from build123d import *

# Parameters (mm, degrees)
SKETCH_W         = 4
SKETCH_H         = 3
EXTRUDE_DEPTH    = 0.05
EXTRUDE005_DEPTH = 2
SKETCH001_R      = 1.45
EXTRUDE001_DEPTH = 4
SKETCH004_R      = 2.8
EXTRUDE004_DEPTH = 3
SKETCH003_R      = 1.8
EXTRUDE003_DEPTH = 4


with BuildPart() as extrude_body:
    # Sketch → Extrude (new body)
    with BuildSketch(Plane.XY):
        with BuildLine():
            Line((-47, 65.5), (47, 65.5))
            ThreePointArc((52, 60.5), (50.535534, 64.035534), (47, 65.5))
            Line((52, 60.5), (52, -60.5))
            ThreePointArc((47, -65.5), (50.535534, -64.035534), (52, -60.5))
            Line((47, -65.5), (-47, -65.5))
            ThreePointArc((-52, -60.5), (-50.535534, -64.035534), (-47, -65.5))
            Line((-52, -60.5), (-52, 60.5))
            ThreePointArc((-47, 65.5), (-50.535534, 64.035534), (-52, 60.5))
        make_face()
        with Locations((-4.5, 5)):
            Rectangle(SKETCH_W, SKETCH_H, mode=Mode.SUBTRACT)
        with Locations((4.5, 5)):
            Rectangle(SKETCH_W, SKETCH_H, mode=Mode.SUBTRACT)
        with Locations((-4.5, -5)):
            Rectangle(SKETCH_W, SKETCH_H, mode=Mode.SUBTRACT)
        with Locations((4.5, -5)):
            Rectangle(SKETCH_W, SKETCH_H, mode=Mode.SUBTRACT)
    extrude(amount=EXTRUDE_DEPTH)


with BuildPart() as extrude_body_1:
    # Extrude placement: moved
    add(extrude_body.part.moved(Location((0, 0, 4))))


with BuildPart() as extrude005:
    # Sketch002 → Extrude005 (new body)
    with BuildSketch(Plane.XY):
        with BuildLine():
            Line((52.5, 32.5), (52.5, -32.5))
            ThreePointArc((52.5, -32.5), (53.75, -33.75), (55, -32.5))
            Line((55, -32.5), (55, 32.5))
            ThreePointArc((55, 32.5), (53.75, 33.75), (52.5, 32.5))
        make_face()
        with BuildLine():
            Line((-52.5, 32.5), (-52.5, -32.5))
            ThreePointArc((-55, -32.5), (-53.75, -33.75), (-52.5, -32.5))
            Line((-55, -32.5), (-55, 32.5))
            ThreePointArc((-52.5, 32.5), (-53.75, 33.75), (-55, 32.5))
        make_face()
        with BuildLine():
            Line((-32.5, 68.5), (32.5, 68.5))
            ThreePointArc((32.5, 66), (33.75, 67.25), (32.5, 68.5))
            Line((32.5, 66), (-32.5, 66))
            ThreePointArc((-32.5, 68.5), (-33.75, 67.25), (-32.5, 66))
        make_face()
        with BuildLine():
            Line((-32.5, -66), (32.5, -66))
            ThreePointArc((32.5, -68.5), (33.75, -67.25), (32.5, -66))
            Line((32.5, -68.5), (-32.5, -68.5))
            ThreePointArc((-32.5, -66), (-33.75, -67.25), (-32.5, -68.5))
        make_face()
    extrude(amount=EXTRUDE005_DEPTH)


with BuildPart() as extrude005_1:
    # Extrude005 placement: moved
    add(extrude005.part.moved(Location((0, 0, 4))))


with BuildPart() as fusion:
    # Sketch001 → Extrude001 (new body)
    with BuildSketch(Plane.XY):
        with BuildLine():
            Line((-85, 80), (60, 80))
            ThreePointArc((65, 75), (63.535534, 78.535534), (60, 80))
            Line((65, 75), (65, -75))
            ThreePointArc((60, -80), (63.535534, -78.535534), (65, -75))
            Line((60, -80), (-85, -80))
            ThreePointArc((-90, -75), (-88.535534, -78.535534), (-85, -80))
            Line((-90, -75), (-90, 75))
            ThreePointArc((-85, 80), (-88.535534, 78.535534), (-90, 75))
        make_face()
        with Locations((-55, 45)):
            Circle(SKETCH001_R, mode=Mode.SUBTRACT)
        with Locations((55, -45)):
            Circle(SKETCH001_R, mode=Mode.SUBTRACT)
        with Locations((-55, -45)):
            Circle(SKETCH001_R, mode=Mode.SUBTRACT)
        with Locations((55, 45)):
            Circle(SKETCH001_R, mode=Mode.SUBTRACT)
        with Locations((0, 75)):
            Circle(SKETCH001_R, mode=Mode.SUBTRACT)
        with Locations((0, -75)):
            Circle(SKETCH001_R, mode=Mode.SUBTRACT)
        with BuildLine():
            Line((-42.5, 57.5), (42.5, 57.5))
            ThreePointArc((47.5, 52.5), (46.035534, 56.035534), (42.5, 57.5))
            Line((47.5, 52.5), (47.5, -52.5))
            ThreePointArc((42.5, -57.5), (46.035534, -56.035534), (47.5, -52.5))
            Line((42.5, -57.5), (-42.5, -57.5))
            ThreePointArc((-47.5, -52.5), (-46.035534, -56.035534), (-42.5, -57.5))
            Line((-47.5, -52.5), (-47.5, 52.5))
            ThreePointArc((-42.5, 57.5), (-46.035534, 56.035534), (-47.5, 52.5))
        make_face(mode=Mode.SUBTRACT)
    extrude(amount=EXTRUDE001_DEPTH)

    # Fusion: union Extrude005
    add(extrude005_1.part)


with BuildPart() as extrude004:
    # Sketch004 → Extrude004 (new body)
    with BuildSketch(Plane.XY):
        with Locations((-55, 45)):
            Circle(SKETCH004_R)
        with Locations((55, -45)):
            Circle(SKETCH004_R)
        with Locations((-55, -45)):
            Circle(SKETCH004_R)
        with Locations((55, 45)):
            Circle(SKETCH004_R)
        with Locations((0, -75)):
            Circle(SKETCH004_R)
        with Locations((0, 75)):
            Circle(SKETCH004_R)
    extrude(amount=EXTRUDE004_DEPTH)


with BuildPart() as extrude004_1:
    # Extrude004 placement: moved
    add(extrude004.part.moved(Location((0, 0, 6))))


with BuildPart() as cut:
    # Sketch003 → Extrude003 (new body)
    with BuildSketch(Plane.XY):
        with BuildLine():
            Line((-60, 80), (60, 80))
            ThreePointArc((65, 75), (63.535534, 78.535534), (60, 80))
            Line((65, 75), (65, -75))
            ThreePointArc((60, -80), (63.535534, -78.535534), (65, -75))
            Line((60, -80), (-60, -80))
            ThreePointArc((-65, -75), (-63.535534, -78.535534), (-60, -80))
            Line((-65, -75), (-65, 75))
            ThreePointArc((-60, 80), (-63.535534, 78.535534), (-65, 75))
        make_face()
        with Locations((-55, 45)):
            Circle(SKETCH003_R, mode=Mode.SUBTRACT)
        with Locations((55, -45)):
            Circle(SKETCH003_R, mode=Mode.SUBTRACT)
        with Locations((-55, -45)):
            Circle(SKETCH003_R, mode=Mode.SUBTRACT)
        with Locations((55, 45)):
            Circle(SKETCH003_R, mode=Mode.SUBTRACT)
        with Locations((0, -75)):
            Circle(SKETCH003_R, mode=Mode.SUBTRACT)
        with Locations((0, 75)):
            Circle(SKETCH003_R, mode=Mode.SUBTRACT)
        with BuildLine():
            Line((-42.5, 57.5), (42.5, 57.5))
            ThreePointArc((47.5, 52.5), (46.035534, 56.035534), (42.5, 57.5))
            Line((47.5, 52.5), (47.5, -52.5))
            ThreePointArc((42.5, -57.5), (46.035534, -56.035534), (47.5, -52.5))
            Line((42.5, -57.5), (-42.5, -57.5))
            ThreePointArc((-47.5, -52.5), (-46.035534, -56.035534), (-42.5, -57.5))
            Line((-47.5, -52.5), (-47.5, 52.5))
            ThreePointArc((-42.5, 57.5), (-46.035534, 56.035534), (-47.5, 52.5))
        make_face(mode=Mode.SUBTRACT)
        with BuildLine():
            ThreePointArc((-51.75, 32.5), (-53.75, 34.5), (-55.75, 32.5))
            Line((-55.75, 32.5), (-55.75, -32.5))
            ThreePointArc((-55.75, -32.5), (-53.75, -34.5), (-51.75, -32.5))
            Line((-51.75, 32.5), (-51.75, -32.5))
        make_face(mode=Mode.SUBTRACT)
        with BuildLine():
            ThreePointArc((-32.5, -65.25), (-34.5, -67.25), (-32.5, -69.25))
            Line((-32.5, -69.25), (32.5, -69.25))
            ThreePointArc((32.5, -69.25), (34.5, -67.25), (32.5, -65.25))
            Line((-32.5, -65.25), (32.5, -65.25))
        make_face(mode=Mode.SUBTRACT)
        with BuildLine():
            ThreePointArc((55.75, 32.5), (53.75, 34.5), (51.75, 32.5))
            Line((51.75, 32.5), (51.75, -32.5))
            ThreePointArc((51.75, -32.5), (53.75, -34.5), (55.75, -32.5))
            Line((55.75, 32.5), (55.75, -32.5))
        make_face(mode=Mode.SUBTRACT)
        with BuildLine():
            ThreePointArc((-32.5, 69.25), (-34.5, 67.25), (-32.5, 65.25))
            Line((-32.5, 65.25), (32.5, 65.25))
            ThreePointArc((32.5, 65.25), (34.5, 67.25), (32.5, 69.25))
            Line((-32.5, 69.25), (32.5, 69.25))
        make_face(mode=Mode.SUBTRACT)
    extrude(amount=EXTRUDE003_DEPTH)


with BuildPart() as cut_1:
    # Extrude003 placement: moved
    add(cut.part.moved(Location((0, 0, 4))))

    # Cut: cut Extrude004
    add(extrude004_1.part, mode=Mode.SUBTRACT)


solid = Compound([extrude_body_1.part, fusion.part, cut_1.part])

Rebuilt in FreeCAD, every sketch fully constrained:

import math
import FreeCAD as App
import Part
import Sketcher
from FreeCAD import Vector


def add_polygon(sketch, points):
    """Adds a closed chain of lines whose ends are joined by coincident constraints."""
    first, n = sketch.GeometryCount, len(points)
    for a, b in zip(points, points[1:] + points[:1]):
        sketch.addGeometry(Part.LineSegment(App.Vector(*a, 0), App.Vector(*b, 0)), False)
    for i in range(n):
        sketch.addConstraint(Sketcher.Constraint("Coincident", first + i, 2, first + (i + 1) % n, 1))

doc = App.newDocument("Part")
params = doc.addObject("Spreadsheet::Sheet", "Params")
for row, (alias, value) in enumerate([
    ("sketch1_radius", "5 mm"),
    ("sketch1_width", "94 mm"),
    ("sketch1_width2", "4 mm"),
    ("sketch1_height", "121 mm"),
    ("sketch1_height2", "3 mm"),
    ("pad1_length", "0.05 mm"),
    ("sketch2_width", "65 mm"),
    ("sketch2_radius", "1.25 mm"),
    ("pad2_length", "2 mm"),
    ("sketch3_radius", "5 mm"),
    ("sketch3_diameter", "2.9 mm"),
    ("sketch3_width", "145 mm"),
    ("sketch3_width2", "85 mm"),
    ("sketch3_height", "150 mm"),
    ("pad3_length", "4 mm"),
    ("sketch4_diameter", "5.6 mm"),
    ("pad4_length", "3 mm"),
    ("sketch5_radius", "5 mm"),
    ("sketch5_radius2", "2 mm"),
    ("sketch5_diameter", "3.6 mm"),
    ("sketch5_width", "120 mm"),
    ("sketch5_width2", "65 mm"),
    ("pad5_length", "4 mm"),
], start=1):
    params.set(f"A{row}", alias)
    params.set(f"B{row}", "=" + value)
    params.setAlias(f"B{row}", alias)

body = doc.addObject("PartDesign::Body", "Body")

# Sketch on XY plane
sketch1 = body.newObject("Sketcher::SketchObject", "Sketch")
sketch1.AttachmentSupport = (doc.getObject("XY_Plane"), [""])
sketch1.MapMode = "FlatFace"
sketch1.addGeometry(Part.LineSegment(Vector(47, 65.5, 0), Vector(-47, 65.5, 0)), False)  # 0
sketch1.addGeometry(Part.ArcOfCircle(Part.Circle(Vector(-47, 60.5, 0), Vector(0, 0, 1), 5), math.radians(90), math.radians(180)), False)  # 1
sketch1.addGeometry(Part.LineSegment(Vector(-52, 60.5, 0), Vector(-52, -60.5, 0)), False)  # 2
sketch1.addGeometry(Part.ArcOfCircle(Part.Circle(Vector(-47, -60.5, 0), Vector(0, 0, 1), 5), math.radians(180), math.radians(270)), False)  # 3
sketch1.addGeometry(Part.LineSegment(Vector(-47, -65.5, 0), Vector(47, -65.5, 0)), False)  # 4
sketch1.addGeometry(Part.ArcOfCircle(Part.Circle(Vector(47, -60.5, 0), Vector(0, 0, 1), 5), math.radians(-90), math.radians(0)), False)  # 5
sketch1.addGeometry(Part.LineSegment(Vector(52, -60.5, 0), Vector(52, 60.5, 0)), False)  # 6
sketch1.addGeometry(Part.ArcOfCircle(Part.Circle(Vector(47, 60.5, 0), Vector(0, 0, 1), 5), math.radians(0), math.radians(90)), False)  # 7
add_polygon(sketch1, [(2.5, -6.5), (2.5, -3.5), (6.5, -3.5), (6.5, -6.5)])  # lines 8-11
add_polygon(sketch1, [(-6.5, -6.5), (-6.5, -3.5), (-2.5, -3.5), (-2.5, -6.5)])  # lines 12-15
add_polygon(sketch1, [(2.5, 3.5), (2.5, 6.5), (6.5, 6.5), (6.5, 3.5)])  # lines 16-19
add_polygon(sketch1, [(-6.5, 3.5), (-6.5, 6.5), (-2.5, 6.5), (-2.5, 3.5)])  # lines 20-23
sketch1.addConstraint(Sketcher.Constraint("Tangent", 0, 2, 1, 1))
sketch1.addConstraint(Sketcher.Constraint("Tangent", 1, 2, 2, 1))
sketch1.addConstraint(Sketcher.Constraint("Tangent", 2, 2, 3, 1))
sketch1.addConstraint(Sketcher.Constraint("Tangent", 3, 2, 4, 1))
sketch1.addConstraint(Sketcher.Constraint("Tangent", 4, 2, 5, 1))
sketch1.addConstraint(Sketcher.Constraint("Tangent", 5, 2, 6, 1))
sketch1.addConstraint(Sketcher.Constraint("Tangent", 6, 2, 7, 1))
sketch1.addConstraint(Sketcher.Constraint("Tangent", 7, 2, 0, 1))
sketch1.addConstraint(Sketcher.Constraint("Horizontal", 0))
sketch1.addConstraint(Sketcher.Constraint("Vertical", 2))
sketch1.addConstraint(Sketcher.Constraint("Horizontal", 4))
sketch1.addConstraint(Sketcher.Constraint("Vertical", 6))
sketch1.addConstraint(Sketcher.Constraint("Vertical", 8))
sketch1.addConstraint(Sketcher.Constraint("Horizontal", 9))
sketch1.addConstraint(Sketcher.Constraint("Vertical", 10))
sketch1.addConstraint(Sketcher.Constraint("Horizontal", 11))
sketch1.addConstraint(Sketcher.Constraint("Vertical", 12))
sketch1.addConstraint(Sketcher.Constraint("Horizontal", 13))
sketch1.addConstraint(Sketcher.Constraint("Vertical", 14))
sketch1.addConstraint(Sketcher.Constraint("Horizontal", 15))
sketch1.addConstraint(Sketcher.Constraint("Vertical", 16))
sketch1.addConstraint(Sketcher.Constraint("Horizontal", 17))
sketch1.addConstraint(Sketcher.Constraint("Vertical", 18))
sketch1.addConstraint(Sketcher.Constraint("Horizontal", 19))
sketch1.addConstraint(Sketcher.Constraint("Vertical", 20))
sketch1.addConstraint(Sketcher.Constraint("Horizontal", 21))
sketch1.addConstraint(Sketcher.Constraint("Vertical", 22))
sketch1.addConstraint(Sketcher.Constraint("Horizontal", 23))
sketch1.addConstraint(Sketcher.Constraint("Equal", 1, 3))
sketch1.addConstraint(Sketcher.Constraint("Equal", 3, 5))
sketch1.addConstraint(Sketcher.Constraint("Equal", 5, 7))
sketch1.addConstraint(Sketcher.Constraint("Symmetric", 1, 3, 5, 3, -1, 1))
sketch1.addConstraint(Sketcher.Constraint("Symmetric", 14, 2, 16, 2, -1, 1))
sketch1.addConstraint(Sketcher.Constraint("Symmetric", 12, 2, 18, 2, -1, 1))
sketch1.addConstraint(Sketcher.Constraint("Symmetric", 10, 2, 20, 2, -1, 1))
sketch1.addConstraint(Sketcher.Constraint("Symmetric", 8, 2, 22, 2, -1, 1))
sketch1.addConstraint(Sketcher.Constraint("Symmetric", 9, 2, 12, 2, -2))
sketch1.addConstraint(Sketcher.Constraint("Symmetric", 11, 2, 14, 2, -2))
sketch1.addConstraint(Sketcher.Constraint("Radius", 1, 5.0))
sketch1.addConstraint(Sketcher.Constraint("DistanceX", 0, 2, 0, 1, 94.0))
sketch1.addConstraint(Sketcher.Constraint("DistanceX", 9, 1, 9, 2, 4.0))
sketch1.addConstraint(Sketcher.Constraint("DistanceY", 2, 2, 2, 1, 121.0))
sketch1.addConstraint(Sketcher.Constraint("DistanceY", 8, 1, 8, 2, 3.0))
sketch1.addConstraint(Sketcher.Constraint("DistanceY", 5, 3, 8, 2, 57.0))
sketch1.addConstraint(Sketcher.Constraint("DistanceX", 12, 2, 8, 2, 9.0))
sketch1.setExpression("Constraints[54]", "Params.sketch1_radius")
sketch1.setExpression("Constraints[55]", "Params.sketch1_width")
sketch1.setExpression("Constraints[56]", "Params.sketch1_width2")
sketch1.setExpression("Constraints[57]", "Params.sketch1_height")
sketch1.setExpression("Constraints[58]", "Params.sketch1_height2")
pad1 = body.newObject("PartDesign::Pad", "Pad")
pad1.Profile = sketch1
pad1.setExpression("Length", "Params.pad1_length")
body2 = doc.addObject("PartDesign::Body", "Body001")
doc.recompute()

body.Placement = App.Placement(Vector(0, 0, 4), App.Rotation(Vector(0, 0, 1), 0))
boolean = body2.newObject("PartDesign::Boolean", "Boolean")
boolean.Type = "Fuse"
boolean.addObjects([body])
body3 = doc.addObject("PartDesign::Body", "Body002")
body3.AllowCompound = True

# Sketch on XY plane
sketch2 = body3.newObject("Sketcher::SketchObject", "Sketch001")
sketch2.AttachmentSupport = (doc.getObject("XY_Plane002"), [""])
sketch2.MapMode = "FlatFace"
sketch2.addGeometry(Part.LineSegment(Vector(52.5, 32.5, 0), Vector(52.5, -32.5, 0)), False)
sketch2.addGeometry(Part.ArcOfCircle(Part.Circle(Vector(53.8, -32.5, 0), Vector(0, 0, 1), 1.2), math.radians(180), math.radians(360)), False)
sketch2.addGeometry(Part.LineSegment(Vector(55, -32.5, 0), Vector(55, 32.5, 0)), False)
sketch2.addGeometry(Part.ArcOfCircle(Part.Circle(Vector(53.8, 32.5, 0), Vector(0, 0, 1), 1.2), math.radians(0), math.radians(180)), False)
sketch2.addGeometry(Part.LineSegment(Vector(-52.5, -32.5, 0), Vector(-52.5, 32.5, 0)), False)
sketch2.addGeometry(Part.ArcOfCircle(Part.Circle(Vector(-53.8, 32.5, 0), Vector(0, 0, 1), 1.2), math.radians(0), math.radians(180)), False)
sketch2.addGeometry(Part.LineSegment(Vector(-55, 32.5, 0), Vector(-55, -32.5, 0)), False)
sketch2.addGeometry(Part.ArcOfCircle(Part.Circle(Vector(-53.8, -32.5, 0), Vector(0, 0, 1), 1.2), math.radians(180), math.radians(360)), False)
sketch2.addGeometry(Part.LineSegment(Vector(32.5, 68.5, 0), Vector(-32.5, 68.5, 0)), False)
sketch2.addGeometry(Part.ArcOfCircle(Part.Circle(Vector(-32.5, 67.2, 0), Vector(0, 0, 1), 1.2), math.radians(90), math.radians(270)), False)
sketch2.addGeometry(Part.LineSegment(Vector(-32.5, 66, 0), Vector(32.5, 66, 0)), False)
sketch2.addGeometry(Part.ArcOfCircle(Part.Circle(Vector(32.5, 67.2, 0), Vector(0, 0, 1), 1.2), math.radians(-90), math.radians(90)), False)
sketch2.addGeometry(Part.LineSegment(Vector(32.5, -66, 0), Vector(-32.5, -66, 0)), False)
sketch2.addGeometry(Part.ArcOfCircle(Part.Circle(Vector(-32.5, -67.2, 0), Vector(0, 0, 1), 1.2), math.radians(90), math.radians(270)), False)
sketch2.addGeometry(Part.LineSegment(Vector(-32.5, -68.5, 0), Vector(32.5, -68.5, 0)), False)
sketch2.addGeometry(Part.ArcOfCircle(Part.Circle(Vector(32.5, -67.2, 0), Vector(0, 0, 1), 1.2), math.radians(-90), math.radians(90)), False)
sketch2.addConstraint(Sketcher.Constraint("Tangent", 0, 2, 1, 1))
sketch2.addConstraint(Sketcher.Constraint("Tangent", 1, 2, 2, 1))
sketch2.addConstraint(Sketcher.Constraint("Tangent", 2, 2, 3, 1))
sketch2.addConstraint(Sketcher.Constraint("Tangent", 3, 2, 0, 1))
sketch2.addConstraint(Sketcher.Constraint("Tangent", 4, 2, 5, 1))
sketch2.addConstraint(Sketcher.Constraint("Tangent", 5, 2, 6, 1))
sketch2.addConstraint(Sketcher.Constraint("Tangent", 6, 2, 7, 1))
sketch2.addConstraint(Sketcher.Constraint("Tangent", 7, 2, 4, 1))
sketch2.addConstraint(Sketcher.Constraint("Tangent", 8, 2, 9, 1))
sketch2.addConstraint(Sketcher.Constraint("Tangent", 9, 2, 10, 1))
sketch2.addConstraint(Sketcher.Constraint("Tangent", 10, 2, 11, 1))
sketch2.addConstraint(Sketcher.Constraint("Tangent", 11, 2, 8, 1))
sketch2.addConstraint(Sketcher.Constraint("Tangent", 12, 2, 13, 1))
sketch2.addConstraint(Sketcher.Constraint("Tangent", 13, 2, 14, 1))
sketch2.addConstraint(Sketcher.Constraint("Tangent", 14, 2, 15, 1))
sketch2.addConstraint(Sketcher.Constraint("Tangent", 15, 2, 12, 1))
sketch2.addConstraint(Sketcher.Constraint("Vertical", 0))
sketch2.addConstraint(Sketcher.Constraint("Vertical", 2))
sketch2.addConstraint(Sketcher.Constraint("Vertical", 4))
sketch2.addConstraint(Sketcher.Constraint("Vertical", 6))
sketch2.addConstraint(Sketcher.Constraint("Horizontal", 8))
sketch2.addConstraint(Sketcher.Constraint("Horizontal", 10))
sketch2.addConstraint(Sketcher.Constraint("Horizontal", 12))
sketch2.addConstraint(Sketcher.Constraint("Horizontal", 14))
sketch2.addConstraint(Sketcher.Constraint("Equal", 3, 5))
sketch2.addConstraint(Sketcher.Constraint("Equal", 7, 9))
sketch2.addConstraint(Sketcher.Constraint("Equal", 11, 13))
sketch2.addConstraint(Sketcher.Constraint("Symmetric", 1, 3, 5, 3, -1, 1))
sketch2.addConstraint(Sketcher.Constraint("Symmetric", 11, 3, 13, 3, -1, 1))
sketch2.addConstraint(Sketcher.Constraint("Horizontal", 3, 3, 5, 3))
sketch2.addConstraint(Sketcher.Constraint("Horizontal", 1, 3, 7, 3))
sketch2.addConstraint(Sketcher.Constraint("Vertical", 9, 3, 13, 3))
sketch2.addConstraint(Sketcher.Constraint("Vertical", 11, 3, 15, 3))
sketch2.addConstraint(Sketcher.Constraint("Equal", 14, 0))
sketch2.addConstraint(Sketcher.Constraint("DistanceX", 8, 2, 8, 1, 65.0))
sketch2.addConstraint(Sketcher.Constraint("Radius", 1, 1.25))
sketch2.addConstraint(Sketcher.Constraint("DistanceX", -1, 1, 1, 2, 55.0))
sketch2.addConstraint(Sketcher.Constraint("DistanceY", -1, 1, 9, 2, 66.0))
sketch2.setExpression("Constraints[34]", "Params.sketch2_width")
sketch2.setExpression("Constraints[35]", "Params.sketch2_radius")
pad2 = body3.newObject("PartDesign::Pad", "Pad001")
pad2.Profile = sketch2
pad2.setExpression("Length", "Params.pad2_length")
body4 = doc.addObject("PartDesign::Body", "Body003")
body4.AllowCompound = True
doc.recompute()

body3.Placement = App.Placement(Vector(0, 0, 4), App.Rotation(Vector(0, 0, 1), 0))
boolean2 = body4.newObject("PartDesign::Boolean", "Boolean001")
boolean2.Type = "Fuse"
boolean2.addObjects([body3])
body5 = doc.addObject("PartDesign::Body", "Body004")

# Sketch on XY plane
sketch3 = body5.newObject("Sketcher::SketchObject", "Sketch002")
sketch3.AttachmentSupport = (doc.getObject("XY_Plane004"), [""])
sketch3.MapMode = "FlatFace"
sketch3.addGeometry(Part.LineSegment(Vector(60, 80, 0), Vector(-85, 80, 0)), False)
sketch3.addGeometry(Part.ArcOfCircle(Part.Circle(Vector(-85, 75, 0), Vector(0, 0, 1), 5), math.radians(90), math.radians(180)), False)
sketch3.addGeometry(Part.LineSegment(Vector(-90, 75, 0), Vector(-90, -75, 0)), False)
sketch3.addGeometry(Part.ArcOfCircle(Part.Circle(Vector(-85, -75, 0), Vector(0, 0, 1), 5), math.radians(180), math.radians(270)), False)
sketch3.addGeometry(Part.LineSegment(Vector(-85, -80, 0), Vector(60, -80, 0)), False)
sketch3.addGeometry(Part.ArcOfCircle(Part.Circle(Vector(60, -75, 0), Vector(0, 0, 1), 5), math.radians(-90), math.radians(0)), False)
sketch3.addGeometry(Part.LineSegment(Vector(65, -75, 0), Vector(65, 75, 0)), False)
sketch3.addGeometry(Part.ArcOfCircle(Part.Circle(Vector(60, 75, 0), Vector(0, 0, 1), 5), math.radians(0), math.radians(90)), False)
sketch3.addGeometry(Part.Circle(Vector(55, -45, 0), Vector(0, 0, 1), 1.4), False)
sketch3.addGeometry(Part.Circle(Vector(0, -75, 0), Vector(0, 0, 1), 1.4), False)
sketch3.addGeometry(Part.Circle(Vector(-55, -45, 0), Vector(0, 0, 1), 1.4), False)
sketch3.addGeometry(Part.LineSegment(Vector(-42.5, 57.5, 0), Vector(42.5, 57.5, 0)), False)
sketch3.addGeometry(Part.ArcOfCircle(Part.Circle(Vector(42.5, 52.5, 0), Vector(0, 0, 1), 5), math.radians(0), math.radians(90)), False)
sketch3.addGeometry(Part.LineSegment(Vector(47.5, 52.5, 0), Vector(47.5, -52.5, 0)), False)
sketch3.addGeometry(Part.ArcOfCircle(Part.Circle(Vector(42.5, -52.5, 0), Vector(0, 0, 1), 5), math.radians(-90), math.radians(0)), False)
sketch3.addGeometry(Part.LineSegment(Vector(42.5, -57.5, 0), Vector(-42.5, -57.5, 0)), False)
sketch3.addGeometry(Part.ArcOfCircle(Part.Circle(Vector(-42.5, -52.5, 0), Vector(0, 0, 1), 5), math.radians(180), math.radians(270)), False)
sketch3.addGeometry(Part.LineSegment(Vector(-47.5, -52.5, 0), Vector(-47.5, 52.5, 0)), False)
sketch3.addGeometry(Part.ArcOfCircle(Part.Circle(Vector(-42.5, 52.5, 0), Vector(0, 0, 1), 5), math.radians(90), math.radians(180)), False)
sketch3.addGeometry(Part.Circle(Vector(55, 45, 0), Vector(0, 0, 1), 1.4), False)
sketch3.addGeometry(Part.Circle(Vector(0, 75, 0), Vector(0, 0, 1), 1.4), False)
sketch3.addGeometry(Part.Circle(Vector(-55, 45, 0), Vector(0, 0, 1), 1.4), False)
sketch3.addConstraint(Sketcher.Constraint("Tangent", 0, 2, 1, 1))
sketch3.addConstraint(Sketcher.Constraint("Tangent", 1, 2, 2, 1))
sketch3.addConstraint(Sketcher.Constraint("Tangent", 2, 2, 3, 1))
sketch3.addConstraint(Sketcher.Constraint("Tangent", 3, 2, 4, 1))
sketch3.addConstraint(Sketcher.Constraint("Tangent", 4, 2, 5, 1))
sketch3.addConstraint(Sketcher.Constraint("Tangent", 5, 2, 6, 1))
sketch3.addConstraint(Sketcher.Constraint("Tangent", 6, 2, 7, 1))
sketch3.addConstraint(Sketcher.Constraint("Tangent", 7, 2, 0, 1))
sketch3.addConstraint(Sketcher.Constraint("Tangent", 11, 2, 12, 2))
sketch3.addConstraint(Sketcher.Constraint("Tangent", 12, 1, 13, 1))
sketch3.addConstraint(Sketcher.Constraint("Tangent", 13, 2, 14, 2))
sketch3.addConstraint(Sketcher.Constraint("Tangent", 14, 1, 15, 1))
sketch3.addConstraint(Sketcher.Constraint("Tangent", 15, 2, 16, 2))
sketch3.addConstraint(Sketcher.Constraint("Tangent", 16, 1, 17, 1))
sketch3.addConstraint(Sketcher.Constraint("Tangent", 17, 2, 18, 2))
sketch3.addConstraint(Sketcher.Constraint("Tangent", 18, 1, 11, 1))
sketch3.addConstraint(Sketcher.Constraint("Horizontal", 0))
sketch3.addConstraint(Sketcher.Constraint("Vertical", 2))
sketch3.addConstraint(Sketcher.Constraint("Horizontal", 4))
sketch3.addConstraint(Sketcher.Constraint("Vertical", 6))
sketch3.addConstraint(Sketcher.Constraint("Horizontal", 11))
sketch3.addConstraint(Sketcher.Constraint("Vertical", 13))
sketch3.addConstraint(Sketcher.Constraint("Horizontal", 15))
sketch3.addConstraint(Sketcher.Constraint("Vertical", 17))
sketch3.addConstraint(Sketcher.Constraint("Equal", 1, 3))
sketch3.addConstraint(Sketcher.Constraint("Equal", 3, 5))
sketch3.addConstraint(Sketcher.Constraint("Equal", 5, 7))
sketch3.addConstraint(Sketcher.Constraint("Equal", 8, 9))
sketch3.addConstraint(Sketcher.Constraint("Equal", 9, 10))
sketch3.addConstraint(Sketcher.Constraint("Equal", 7, 12))
sketch3.addConstraint(Sketcher.Constraint("Equal", 12, 14))
sketch3.addConstraint(Sketcher.Constraint("Equal", 14, 16))
sketch3.addConstraint(Sketcher.Constraint("Equal", 16, 18))
sketch3.addConstraint(Sketcher.Constraint("Equal", 10, 19))
sketch3.addConstraint(Sketcher.Constraint("Equal", 19, 20))
sketch3.addConstraint(Sketcher.Constraint("Equal", 20, 21))
sketch3.addConstraint(Sketcher.Constraint("Symmetric", 12, 3, 16, 3, -1, 1))
sketch3.addConstraint(Sketcher.Constraint("Symmetric", 10, 3, 19, 3, -1, 1))
sketch3.addConstraint(Sketcher.Constraint("Symmetric", 9, 3, 20, 3, -1, 1))
sketch3.addConstraint(Sketcher.Constraint("Symmetric", 8, 3, 21, 3, -1, 1))
sketch3.addConstraint(Sketcher.Constraint("Symmetric", 8, 3, 10, 3, -2))
sketch3.addConstraint(Sketcher.Constraint("PointOnObject", 9, 3, -2))
sketch3.addConstraint(Sketcher.Constraint("Horizontal", 5, 3, 9, 3))
sketch3.addConstraint(Sketcher.Constraint("Horizontal", 7, 3, 20, 3))
sketch3.addConstraint(Sketcher.Constraint("Radius", 1, 5.0))
sketch3.addConstraint(Sketcher.Constraint("Diameter", 8, 2.9))
sketch3.addConstraint(Sketcher.Constraint("DistanceX", 0, 2, 0, 1, 145.0))
sketch3.addConstraint(Sketcher.Constraint("DistanceX", 11, 1, 11, 2, 85.0))
sketch3.addConstraint(Sketcher.Constraint("DistanceY", 2, 2, 2, 1, 150.0))
sketch3.addConstraint(Sketcher.Constraint("DistanceY", 13, 2, 13, 1, 105.0))
sketch3.addConstraint(Sketcher.Constraint("DistanceX", 1, 3, -1, 1, 85.0))
sketch3.addConstraint(Sketcher.Constraint("DistanceX", -1, 1, 8, 3, 55.0))
sketch3.addConstraint(Sketcher.Constraint("DistanceY", 8, 3, -1, 1, 45.0))
sketch3.setExpression("Constraints[44]", "Params.sketch3_radius")
sketch3.setExpression("Constraints[45]", "Params.sketch3_diameter")
sketch3.setExpression("Constraints[46]", "Params.sketch3_width")
sketch3.setExpression("Constraints[47]", "Params.sketch3_width2")
sketch3.setExpression("Constraints[48]", "Params.sketch3_height")
pad3 = body5.newObject("PartDesign::Pad", "Pad002")
pad3.Profile = sketch3
pad3.setExpression("Length", "Params.pad3_length")
doc.recompute()

boolean3 = body5.newObject("PartDesign::Boolean", "Boolean002")
boolean3.Type = "Fuse"
boolean3.addObjects([body4])
body6 = doc.addObject("PartDesign::Body", "Body005")
body6.AllowCompound = True

# Sketch on XY plane
sketch4 = body6.newObject("Sketcher::SketchObject", "Sketch003")
sketch4.AttachmentSupport = (doc.getObject("XY_Plane005"), [""])
sketch4.MapMode = "FlatFace"
sketch4.addGeometry(Part.Circle(Vector(-55, 45, 0), Vector(0, 0, 1), 2.8), False)
sketch4.addGeometry(Part.Circle(Vector(55, -45, 0), Vector(0, 0, 1), 2.8), False)
sketch4.addGeometry(Part.Circle(Vector(-55, -45, 0), Vector(0, 0, 1), 2.8), False)
sketch4.addGeometry(Part.Circle(Vector(55, 45, 0), Vector(0, 0, 1), 2.8), False)
sketch4.addGeometry(Part.Circle(Vector(0, -75, 0), Vector(0, 0, 1), 2.8), False)
sketch4.addGeometry(Part.Circle(Vector(0, 75, 0), Vector(0, 0, 1), 2.8), False)
sketch4.addConstraint(Sketcher.Constraint("Equal", 0, 1))
sketch4.addConstraint(Sketcher.Constraint("Equal", 1, 2))
sketch4.addConstraint(Sketcher.Constraint("Equal", 2, 3))
sketch4.addConstraint(Sketcher.Constraint("Equal", 3, 4))
sketch4.addConstraint(Sketcher.Constraint("Equal", 4, 5))
sketch4.addConstraint(Sketcher.Constraint("Symmetric", 0, 3, 1, 3, -1, 1))
sketch4.addConstraint(Sketcher.Constraint("Symmetric", 2, 3, 3, 3, -1, 1))
sketch4.addConstraint(Sketcher.Constraint("Symmetric", 4, 3, 5, 3, -1, 1))
sketch4.addConstraint(Sketcher.Constraint("Symmetric", 1, 3, 2, 3, -2))
sketch4.addConstraint(Sketcher.Constraint("PointOnObject", 4, 3, -2))
sketch4.addConstraint(Sketcher.Constraint("Diameter", 0, 5.6))
sketch4.addConstraint(Sketcher.Constraint("DistanceX", 0, 3, -1, 1, 55.0))
sketch4.addConstraint(Sketcher.Constraint("DistanceY", -1, 1, 0, 3, 45.0))
sketch4.addConstraint(Sketcher.Constraint("DistanceY", 4, 3, -1, 1, 75.0))
sketch4.setExpression("Constraints[10]", "Params.sketch4_diameter")
pad4 = body6.newObject("PartDesign::Pad", "Pad003")
pad4.Profile = sketch4
pad4.setExpression("Length", "Params.pad4_length")
body7 = doc.addObject("PartDesign::Body", "Body006")
body7.AllowCompound = True
doc.recompute()

body6.Placement = App.Placement(Vector(0, 0, 6), App.Rotation(Vector(0, 0, 1), 0))
boolean4 = body7.newObject("PartDesign::Boolean", "Boolean003")
boolean4.Type = "Fuse"
boolean4.addObjects([body6])
body8 = doc.addObject("PartDesign::Body", "Body007")

# Sketch on XY plane
sketch5 = body8.newObject("Sketcher::SketchObject", "Sketch004")
sketch5.AttachmentSupport = (doc.getObject("XY_Plane007"), [""])
sketch5.MapMode = "FlatFace"
sketch5.addGeometry(Part.LineSegment(Vector(60, 80, 0), Vector(-60, 80, 0)), False)
sketch5.addGeometry(Part.ArcOfCircle(Part.Circle(Vector(-60, 75, 0), Vector(0, 0, 1), 5), math.radians(90), math.radians(180)), False)
sketch5.addGeometry(Part.LineSegment(Vector(-65, 75, 0), Vector(-65, -75, 0)), False)
sketch5.addGeometry(Part.ArcOfCircle(Part.Circle(Vector(-60, -75, 0), Vector(0, 0, 1), 5), math.radians(180), math.radians(270)), False)
sketch5.addGeometry(Part.LineSegment(Vector(-60, -80, 0), Vector(60, -80, 0)), False)
sketch5.addGeometry(Part.ArcOfCircle(Part.Circle(Vector(60, -75, 0), Vector(0, 0, 1), 5), math.radians(-90), math.radians(0)), False)
sketch5.addGeometry(Part.LineSegment(Vector(65, -75, 0), Vector(65, 75, 0)), False)
sketch5.addGeometry(Part.ArcOfCircle(Part.Circle(Vector(60, 75, 0), Vector(0, 0, 1), 5), math.radians(0), math.radians(90)), False)
sketch5.addGeometry(Part.Circle(Vector(55, -45, 0), Vector(0, 0, 1), 1.8), False)
sketch5.addGeometry(Part.Circle(Vector(0, -75, 0), Vector(0, 0, 1), 1.8), False)
sketch5.addGeometry(Part.LineSegment(Vector(-32.5, -65.2, 0), Vector(32.5, -65.2, 0)), False)
sketch5.addGeometry(Part.ArcOfCircle(Part.Circle(Vector(32.5, -67.2, 0), Vector(0, 0, 1), 2), math.radians(-90), math.radians(90)), False)
sketch5.addGeometry(Part.LineSegment(Vector(32.5, -69.2, 0), Vector(-32.5, -69.2, 0)), False)
sketch5.addGeometry(Part.ArcOfCircle(Part.Circle(Vector(-32.5, -67.2, 0), Vector(0, 0, 1), 2), math.radians(90), math.radians(270)), False)
sketch5.addGeometry(Part.Circle(Vector(-55, -45, 0), Vector(0, 0, 1), 1.8), False)
sketch5.addGeometry(Part.LineSegment(Vector(55.8, 32.5, 0), Vector(55.8, -32.5, 0)), False)
sketch5.addGeometry(Part.ArcOfCircle(Part.Circle(Vector(53.8, -32.5, 0), Vector(0, 0, 1), 2), math.radians(180), math.radians(360)), False)
sketch5.addGeometry(Part.LineSegment(Vector(51.8, -32.5, 0), Vector(51.8, 32.5, 0)), False)
sketch5.addGeometry(Part.ArcOfCircle(Part.Circle(Vector(53.8, 32.5, 0), Vector(0, 0, 1), 2), math.radians(0), math.radians(180)), False)
sketch5.addGeometry(Part.Circle(Vector(55, 45, 0), Vector(0, 0, 1), 1.8), False)
sketch5.addGeometry(Part.LineSegment(Vector(-42.5, 57.5, 0), Vector(42.5, 57.5, 0)), False)
sketch5.addGeometry(Part.ArcOfCircle(Part.Circle(Vector(42.5, 52.5, 0), Vector(0, 0, 1), 5), math.radians(0), math.radians(90)), False)
sketch5.addGeometry(Part.LineSegment(Vector(47.5, 52.5, 0), Vector(47.5, -52.5, 0)), False)
sketch5.addGeometry(Part.ArcOfCircle(Part.Circle(Vector(42.5, -52.5, 0), Vector(0, 0, 1), 5), math.radians(-90), math.radians(0)), False)
sketch5.addGeometry(Part.LineSegment(Vector(42.5, -57.5, 0), Vector(-42.5, -57.5, 0)), False)
sketch5.addGeometry(Part.ArcOfCircle(Part.Circle(Vector(-42.5, -52.5, 0), Vector(0, 0, 1), 5), math.radians(180), math.radians(270)), False)
sketch5.addGeometry(Part.LineSegment(Vector(-47.5, -52.5, 0), Vector(-47.5, 52.5, 0)), False)
sketch5.addGeometry(Part.ArcOfCircle(Part.Circle(Vector(-42.5, 52.5, 0), Vector(0, 0, 1), 5), math.radians(90), math.radians(180)), False)
sketch5.addGeometry(Part.LineSegment(Vector(-51.8, 32.5, 0), Vector(-51.8, -32.5, 0)), False)
sketch5.addGeometry(Part.ArcOfCircle(Part.Circle(Vector(-53.8, -32.5, 0), Vector(0, 0, 1), 2), math.radians(180), math.radians(360)), False)
sketch5.addGeometry(Part.LineSegment(Vector(-55.8, -32.5, 0), Vector(-55.8, 32.5, 0)), False)
sketch5.addGeometry(Part.ArcOfCircle(Part.Circle(Vector(-53.8, 32.5, 0), Vector(0, 0, 1), 2), math.radians(0), math.radians(180)), False)
sketch5.addGeometry(Part.LineSegment(Vector(-32.5, 69.2, 0), Vector(32.5, 69.2, 0)), False)
sketch5.addGeometry(Part.ArcOfCircle(Part.Circle(Vector(32.5, 67.2, 0), Vector(0, 0, 1), 2), math.radians(-90), math.radians(90)), False)
sketch5.addGeometry(Part.LineSegment(Vector(32.5, 65.2, 0), Vector(-32.5, 65.2, 0)), False)
sketch5.addGeometry(Part.ArcOfCircle(Part.Circle(Vector(-32.5, 67.2, 0), Vector(0, 0, 1), 2), math.radians(90), math.radians(270)), False)
sketch5.addGeometry(Part.Circle(Vector(0, 75, 0), Vector(0, 0, 1), 1.8), False)
sketch5.addGeometry(Part.Circle(Vector(-55, 45, 0), Vector(0, 0, 1), 1.8), False)
sketch5.addConstraint(Sketcher.Constraint("Tangent", 0, 2, 1, 1))
sketch5.addConstraint(Sketcher.Constraint("Tangent", 1, 2, 2, 1))
sketch5.addConstraint(Sketcher.Constraint("Tangent", 2, 2, 3, 1))
sketch5.addConstraint(Sketcher.Constraint("Tangent", 3, 2, 4, 1))
sketch5.addConstraint(Sketcher.Constraint("Tangent", 4, 2, 5, 1))
sketch5.addConstraint(Sketcher.Constraint("Tangent", 5, 2, 6, 1))
sketch5.addConstraint(Sketcher.Constraint("Tangent", 6, 2, 7, 1))
sketch5.addConstraint(Sketcher.Constraint("Tangent", 7, 2, 0, 1))
sketch5.addConstraint(Sketcher.Constraint("Tangent", 10, 2, 11, 2))
sketch5.addConstraint(Sketcher.Constraint("Tangent", 11, 1, 12, 1))
sketch5.addConstraint(Sketcher.Constraint("Tangent", 12, 2, 13, 2))
sketch5.addConstraint(Sketcher.Constraint("Tangent", 13, 1, 10, 1))
sketch5.addConstraint(Sketcher.Constraint("Tangent", 15, 2, 16, 2))
sketch5.addConstraint(Sketcher.Constraint("Tangent", 16, 1, 17, 1))
sketch5.addConstraint(Sketcher.Constraint("Tangent", 17, 2, 18, 2))
sketch5.addConstraint(Sketcher.Constraint("Tangent", 18, 1, 15, 1))
sketch5.addConstraint(Sketcher.Constraint("Tangent", 20, 2, 21, 2))
sketch5.addConstraint(Sketcher.Constraint("Tangent", 21, 1, 22, 1))
sketch5.addConstraint(Sketcher.Constraint("Tangent", 22, 2, 23, 2))
sketch5.addConstraint(Sketcher.Constraint("Tangent", 23, 1, 24, 1))
sketch5.addConstraint(Sketcher.Constraint("Tangent", 24, 2, 25, 2))
sketch5.addConstraint(Sketcher.Constraint("Tangent", 25, 1, 26, 1))
sketch5.addConstraint(Sketcher.Constraint("Tangent", 26, 2, 27, 2))
sketch5.addConstraint(Sketcher.Constraint("Tangent", 27, 1, 20, 1))
sketch5.addConstraint(Sketcher.Constraint("Tangent", 28, 2, 29, 2))
sketch5.addConstraint(Sketcher.Constraint("Tangent", 29, 1, 30, 1))
sketch5.addConstraint(Sketcher.Constraint("Tangent", 30, 2, 31, 2))
sketch5.addConstraint(Sketcher.Constraint("Tangent", 31, 1, 28, 1))
sketch5.addConstraint(Sketcher.Constraint("Tangent", 32, 2, 33, 2))
sketch5.addConstraint(Sketcher.Constraint("Tangent", 33, 1, 34, 1))
sketch5.addConstraint(Sketcher.Constraint("Tangent", 34, 2, 35, 2))
sketch5.addConstraint(Sketcher.Constraint("Tangent", 35, 1, 32, 1))
sketch5.addConstraint(Sketcher.Constraint("Horizontal", 0))
sketch5.addConstraint(Sketcher.Constraint("Vertical", 2))
sketch5.addConstraint(Sketcher.Constraint("Horizontal", 4))
sketch5.addConstraint(Sketcher.Constraint("Vertical", 6))
sketch5.addConstraint(Sketcher.Constraint("Horizontal", 10))
sketch5.addConstraint(Sketcher.Constraint("Horizontal", 12))
sketch5.addConstraint(Sketcher.Constraint("Vertical", 15))
sketch5.addConstraint(Sketcher.Constraint("Vertical", 17))
sketch5.addConstraint(Sketcher.Constraint("Horizontal", 20))
sketch5.addConstraint(Sketcher.Constraint("Vertical", 22))
sketch5.addConstraint(Sketcher.Constraint("Horizontal", 24))
sketch5.addConstraint(Sketcher.Constraint("Vertical", 26))
sketch5.addConstraint(Sketcher.Constraint("Vertical", 28))
sketch5.addConstraint(Sketcher.Constraint("Vertical", 30))
sketch5.addConstraint(Sketcher.Constraint("Horizontal", 32))
sketch5.addConstraint(Sketcher.Constraint("Horizontal", 34))
sketch5.addConstraint(Sketcher.Constraint("Equal", 1, 3))
sketch5.addConstraint(Sketcher.Constraint("Equal", 3, 5))
sketch5.addConstraint(Sketcher.Constraint("Equal", 5, 7))
sketch5.addConstraint(Sketcher.Constraint("Equal", 8, 9))
sketch5.addConstraint(Sketcher.Constraint("Equal", 9, 14))
sketch5.addConstraint(Sketcher.Constraint("Equal", 13, 16))
sketch5.addConstraint(Sketcher.Constraint("Equal", 14, 19))
sketch5.addConstraint(Sketcher.Constraint("Equal", 7, 21))
sketch5.addConstraint(Sketcher.Constraint("Equal", 21, 23))
sketch5.addConstraint(Sketcher.Constraint("Equal", 23, 25))
sketch5.addConstraint(Sketcher.Constraint("Equal", 25, 27))
sketch5.addConstraint(Sketcher.Constraint("Equal", 18, 29))
sketch5.addConstraint(Sketcher.Constraint("Equal", 31, 33))
sketch5.addConstraint(Sketcher.Constraint("Equal", 19, 36))
sketch5.addConstraint(Sketcher.Constraint("Equal", 36, 37))
sketch5.addConstraint(Sketcher.Constraint("Symmetric", 1, 3, 5, 3, -1, 1))
sketch5.addConstraint(Sketcher.Constraint("Symmetric", 14, 3, 19, 3, -1, 1))
sketch5.addConstraint(Sketcher.Constraint("Symmetric", 21, 3, 25, 3, -1, 1))
sketch5.addConstraint(Sketcher.Constraint("Symmetric", 18, 3, 29, 3, -1, 1))
sketch5.addConstraint(Sketcher.Constraint("Symmetric", 13, 3, 33, 3, -1, 1))
sketch5.addConstraint(Sketcher.Constraint("Symmetric", 9, 3, 36, 3, -1, 1))
sketch5.addConstraint(Sketcher.Constraint("Symmetric", 8, 3, 37, 3, -1, 1))
sketch5.addConstraint(Sketcher.Constraint("Symmetric", 8, 3, 14, 3, -2))
sketch5.addConstraint(Sketcher.Constraint("PointOnObject", 9, 3, -2))
sketch5.addConstraint(Sketcher.Constraint("Horizontal", 5, 3, 9, 3))
sketch5.addConstraint(Sketcher.Constraint("Horizontal", 16, 3, 29, 3))
sketch5.addConstraint(Sketcher.Constraint("Horizontal", 18, 3, 31, 3))
sketch5.addConstraint(Sketcher.Constraint("Vertical", 11, 3, 33, 3))
sketch5.addConstraint(Sketcher.Constraint("Vertical", 13, 3, 35, 3))
sketch5.addConstraint(Sketcher.Constraint("Equal", 34, 15))
sketch5.addConstraint(Sketcher.Constraint("Radius", 1, 5.0))
sketch5.addConstraint(Sketcher.Constraint("Radius", 11, 2.0))
sketch5.addConstraint(Sketcher.Constraint("Diameter", 8, 3.6))
sketch5.addConstraint(Sketcher.Constraint("DistanceX", 0, 2, 0, 1, 120.0))
sketch5.addConstraint(Sketcher.Constraint("DistanceX", 10, 1, 10, 2, 65.0))
sketch5.addConstraint(Sketcher.Constraint("DistanceX", 20, 1, 20, 2, 85.0))
sketch5.addConstraint(Sketcher.Constraint("DistanceY", 2, 2, 2, 1, 150.0))
sketch5.addConstraint(Sketcher.Constraint("DistanceY", 22, 2, 22, 1, 105.0))
sketch5.addConstraint(Sketcher.Constraint("DistanceX", -1, 1, 8, 3, 55.0))
sketch5.addConstraint(Sketcher.Constraint("DistanceY", 8, 3, -1, 1, 45.0))
sketch5.addConstraint(Sketcher.Constraint("DistanceY", 11, 3, -1, 1, 67.25))
sketch5.addConstraint(Sketcher.Constraint("DistanceX", -1, 1, 16, 3, 53.75))
sketch5.setExpression("Constraints[78]", "Params.sketch5_radius")
sketch5.setExpression("Constraints[79]", "Params.sketch5_radius2")
sketch5.setExpression("Constraints[80]", "Params.sketch5_diameter")
sketch5.setExpression("Constraints[81]", "Params.sketch5_width")
sketch5.setExpression("Constraints[82]", "Params.sketch5_width2")
pad5 = body8.newObject("PartDesign::Pad", "Pad004")
pad5.Profile = sketch5
pad5.setExpression("Length", "Params.pad5_length")
body9 = doc.addObject("PartDesign::Body", "Body008")
doc.recompute()

body8.Placement = App.Placement(Vector(0, 0, 4), App.Rotation(Vector(0, 0, 1), 0))
boolean5 = body9.newObject("PartDesign::Boolean", "Boolean004")
boolean5.Type = "Fuse"
boolean5.addObjects([body8])
doc.recompute()

boolean6 = body9.newObject("PartDesign::Boolean", "Boolean005")
boolean6.Type = "Cut"
boolean6.addObjects([body7])

doc.recompute()
